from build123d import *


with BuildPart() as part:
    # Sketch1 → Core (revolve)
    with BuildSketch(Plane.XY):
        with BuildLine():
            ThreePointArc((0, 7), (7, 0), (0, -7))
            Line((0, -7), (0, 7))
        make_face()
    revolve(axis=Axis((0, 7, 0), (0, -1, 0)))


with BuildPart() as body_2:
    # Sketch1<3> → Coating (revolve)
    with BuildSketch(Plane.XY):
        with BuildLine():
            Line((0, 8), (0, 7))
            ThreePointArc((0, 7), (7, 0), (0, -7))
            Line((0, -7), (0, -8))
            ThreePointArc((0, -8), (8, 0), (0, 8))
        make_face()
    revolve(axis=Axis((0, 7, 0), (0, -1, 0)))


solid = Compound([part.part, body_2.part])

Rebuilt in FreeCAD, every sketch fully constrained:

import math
import FreeCAD as App
import Part
import Sketcher

V = App.Vector
Q = App.Units.Quantity

doc = App.newDocument("Part")
body = doc.addObject("PartDesign::Body", "Body")

sketch1 = body.newObject("Sketcher::SketchObject", "Sketch")
sketch1.AttachmentSupport = (doc.getObject("XY_Plane"), [""])
sketch1.MapMode = "FlatFace"
sketch1.addGeometry(Part.ArcOfCircle(Part.Circle(V(0, 0, 0), V(0, 0, 1), 7), math.radians(-90), math.radians(90)), False)
sketch1.addGeometry(Part.LineSegment(V(0, 7, 0), V(0, -7, 0)), False)
sketch1.addConstraint(Sketcher.Constraint("Coincident", 0, 1, 1, 2))
sketch1.addConstraint(Sketcher.Constraint("Coincident", 1, 1, 0, 2))
sketch1.addConstraint(Sketcher.Constraint("Vertical", 1))
sketch1.addConstraint(Sketcher.Constraint("Coincident", 0, 3, -1, 1))
sketch1.addConstraint(Sketcher.Constraint("PointOnObject", 0, 1, -2))
sketch1.addConstraint(Sketcher.Constraint("Radius", 0, Q("7 mm")))
revolution = body.newObject("PartDesign::Revolution", "Revolution")
revolution.Profile = sketch1
revolution.ReferenceAxis = (sketch1, ["V_Axis"])
revolution.Angle = 360
body2 = doc.addObject("PartDesign::Body", "Body001")

sketch2 = body2.newObject("Sketcher::SketchObject", "Sketch001")
sketch2.AttachmentSupport = (doc.getObject("XY_Plane001"), [""])
sketch2.MapMode = "FlatFace"
sketch2.addGeometry(Part.LineSegment(V(0, 8, 0), V(0, 7, 0)), False)
sketch2.addGeometry(Part.ArcOfCircle(Part.Circle(V(0, 0, 0), V(0, 0, 1), 7), math.radians(-90), math.radians(90)), False)
sketch2.addGeometry(Part.LineSegment(V(0, -7, 0), V(0, -8, 0)), False)
sketch2.addGeometry(Part.ArcOfCircle(Part.Circle(V(0, 0, 0), V(0, 0, 1), 8), math.radians(-90), math.radians(90)), False)
sketch2.addConstraint(Sketcher.Constraint("Coincident", 0, 2, 1, 2))
sketch2.addConstraint(Sketcher.Constraint("Coincident", 1, 1, 2, 1))
sketch2.addConstraint(Sketcher.Constraint("Coincident", 2, 2, 3, 1))
sketch2.addConstraint(Sketcher.Constraint("Coincident", 3, 2, 0, 1))
sketch2.addConstraint(Sketcher.Constraint("Vertical", 0))
sketch2.addConstraint(Sketcher.Constraint("Vertical", 2))
sketch2.addConstraint(Sketcher.Constraint("Coincident", 1, 3, -1, 1))
sketch2.addConstraint(Sketcher.Constraint("Coincident", 3, 3, -1, 1))
sketch2.addConstraint(Sketcher.Constraint("PointOnObject", 0, 2, -2))
sketch2.addConstraint(Sketcher.Constraint("PointOnObject", 1, 1, -2))
sketch2.addConstraint(Sketcher.Constraint("Radius", 1, Q("7 mm")))
sketch2.addConstraint(Sketcher.Constraint("Radius", 3, Q("8 mm")))
revolution2 = body2.newObject("PartDesign::Revolution", "Revolution001")
revolution2.Profile = sketch2
revolution2.ReferenceAxis = (sketch2, ["V_Axis"])
revolution2.Angle = 360

doc.recompute()
